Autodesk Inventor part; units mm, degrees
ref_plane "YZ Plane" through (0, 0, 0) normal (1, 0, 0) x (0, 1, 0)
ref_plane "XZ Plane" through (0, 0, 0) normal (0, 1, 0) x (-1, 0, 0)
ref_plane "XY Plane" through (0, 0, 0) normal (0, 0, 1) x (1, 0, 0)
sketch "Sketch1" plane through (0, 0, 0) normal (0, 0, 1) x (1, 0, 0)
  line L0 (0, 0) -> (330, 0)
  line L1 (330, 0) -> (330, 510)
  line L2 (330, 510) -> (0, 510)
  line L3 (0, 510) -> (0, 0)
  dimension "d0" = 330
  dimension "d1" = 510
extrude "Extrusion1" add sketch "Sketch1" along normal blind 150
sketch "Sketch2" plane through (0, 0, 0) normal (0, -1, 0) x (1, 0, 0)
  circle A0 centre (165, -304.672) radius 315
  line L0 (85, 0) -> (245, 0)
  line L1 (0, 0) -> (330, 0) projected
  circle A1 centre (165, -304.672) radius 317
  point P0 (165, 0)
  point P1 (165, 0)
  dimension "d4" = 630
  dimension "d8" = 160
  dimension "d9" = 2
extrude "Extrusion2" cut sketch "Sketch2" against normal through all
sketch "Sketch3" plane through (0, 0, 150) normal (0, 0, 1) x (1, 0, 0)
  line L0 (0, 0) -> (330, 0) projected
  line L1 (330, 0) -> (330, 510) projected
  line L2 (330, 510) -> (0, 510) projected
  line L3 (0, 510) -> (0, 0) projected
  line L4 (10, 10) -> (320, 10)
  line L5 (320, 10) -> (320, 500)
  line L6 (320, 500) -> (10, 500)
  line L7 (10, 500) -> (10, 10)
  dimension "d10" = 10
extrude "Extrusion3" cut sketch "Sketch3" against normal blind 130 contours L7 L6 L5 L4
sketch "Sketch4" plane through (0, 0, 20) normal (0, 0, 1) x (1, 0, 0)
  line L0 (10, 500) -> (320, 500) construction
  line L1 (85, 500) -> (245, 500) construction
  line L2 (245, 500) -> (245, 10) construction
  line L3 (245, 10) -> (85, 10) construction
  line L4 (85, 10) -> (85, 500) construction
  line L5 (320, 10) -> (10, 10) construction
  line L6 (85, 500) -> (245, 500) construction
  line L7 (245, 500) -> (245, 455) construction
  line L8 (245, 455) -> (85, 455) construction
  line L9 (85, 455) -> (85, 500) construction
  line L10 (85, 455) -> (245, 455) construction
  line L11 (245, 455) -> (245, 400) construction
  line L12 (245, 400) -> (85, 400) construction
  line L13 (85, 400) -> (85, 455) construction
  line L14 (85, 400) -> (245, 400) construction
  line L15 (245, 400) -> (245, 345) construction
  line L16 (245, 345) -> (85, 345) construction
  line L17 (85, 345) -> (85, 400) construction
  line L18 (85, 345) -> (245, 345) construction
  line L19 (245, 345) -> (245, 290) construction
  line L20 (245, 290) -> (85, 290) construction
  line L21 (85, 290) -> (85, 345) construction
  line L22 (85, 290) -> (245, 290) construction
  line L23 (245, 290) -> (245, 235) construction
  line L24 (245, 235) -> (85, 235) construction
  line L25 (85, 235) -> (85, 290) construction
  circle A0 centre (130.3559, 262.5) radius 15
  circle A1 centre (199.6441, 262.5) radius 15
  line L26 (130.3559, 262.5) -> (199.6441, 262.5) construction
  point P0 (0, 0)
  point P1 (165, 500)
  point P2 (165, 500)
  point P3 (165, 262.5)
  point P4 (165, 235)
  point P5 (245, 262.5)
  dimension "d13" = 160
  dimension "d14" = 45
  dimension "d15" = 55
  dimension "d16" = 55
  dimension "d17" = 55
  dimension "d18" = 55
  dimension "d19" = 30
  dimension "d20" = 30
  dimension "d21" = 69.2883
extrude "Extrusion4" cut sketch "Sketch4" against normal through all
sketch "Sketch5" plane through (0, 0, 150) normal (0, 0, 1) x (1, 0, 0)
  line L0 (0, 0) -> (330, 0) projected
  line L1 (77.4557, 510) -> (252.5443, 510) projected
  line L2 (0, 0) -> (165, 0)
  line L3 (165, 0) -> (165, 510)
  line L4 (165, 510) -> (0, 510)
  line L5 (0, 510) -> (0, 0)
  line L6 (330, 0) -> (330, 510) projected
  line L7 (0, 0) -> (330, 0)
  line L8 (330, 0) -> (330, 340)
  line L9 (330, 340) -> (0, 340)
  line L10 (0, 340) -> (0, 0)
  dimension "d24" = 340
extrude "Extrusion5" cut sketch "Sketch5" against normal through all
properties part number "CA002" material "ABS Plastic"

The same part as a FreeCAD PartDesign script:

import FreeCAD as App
import Part
import Sketcher
from FreeCAD import Vector
Q = App.Units.Quantity


def add_polygon(sketch, points):
    """Adds a closed chain of lines whose ends are joined by coincident constraints."""
    first, n = sketch.GeometryCount, len(points)
    for a, b in zip(points, points[1:] + points[:1]):
        sketch.addGeometry(Part.LineSegment(App.Vector(*a, 0), App.Vector(*b, 0)), False)
    for i in range(n):
        sketch.addConstraint(Sketcher.Constraint("Coincident", first + i, 2, first + (i + 1) % n, 1))

doc = App.newDocument("Part")
params = doc.addObject("Spreadsheet::Sheet", "Params")
for row, (alias, value) in enumerate([
    ("sketch1_width", "330 mm"),
    ("sketch1_height", "510 mm"),
    ("pad1_length", "150 mm"),
    ("sketch2_diameter", "634 mm"),
    ("sketch3_width", "310 mm"),
    ("sketch3_height", "490 mm"),
    ("pocket2_length", "130 mm"),
    ("sketch4_diameter", "30 mm"),
    ("sketch5_height", "340 mm"),
    ("sketch5_width", "330 mm"),
    ("sketch5_height2", "170 mm"),
], start=1):
    params.set(f"A{row}", alias)
    params.set(f"B{row}", "=" + value)
    params.setAlias(f"B{row}", alias)

body = doc.addObject("PartDesign::Body", "Body")

sketch1 = body.newObject("Sketcher::SketchObject", "Sketch")
sketch1.AttachmentSupport = (doc.getObject("XY_Plane"), [""])
sketch1.MapMode = "FlatFace"
add_polygon(sketch1, [(0, 510), (0, 0), (330, 0), (330, 510)])
sketch1.addConstraint([
    Sketcher.Constraint("Vertical", 0),
    Sketcher.Constraint("Horizontal", 1),
    Sketcher.Constraint("Vertical", 2),
    Sketcher.Constraint("Horizontal", 3),
    Sketcher.Constraint("Coincident", 0, 2, -1, 1),
    Sketcher.Constraint("DistanceX", 1, 1, 1, 2, Q("330 mm")),
    Sketcher.Constraint("DistanceY", 0, 2, 0, 1, Q("510 mm")),
])
sketch1.setExpression("Constraints[9]", "Params.sketch1_width")
sketch1.setExpression("Constraints[10]", "Params.sketch1_height")
pad1 = body.newObject("PartDesign::Pad", "Pad")
pad1.Profile = sketch1
pad1.setExpression("Length", "Params.pad1_length")

sketch2 = body.newObject("Sketcher::SketchObject", "Sketch001")
sketch2.AttachmentSupport = (doc.getObject("XZ_Plane"), [""])
sketch2.MapMode = "FlatFace"
sketch2.addGeometry(Part.Circle(Vector(165, -305, 0), Vector(0, 0, 1), 317), False)
sketch2.addConstraint([
    Sketcher.Constraint("Diameter", 0, Q("634 mm")),
    Sketcher.Constraint("DistanceX", -1, 1, 0, 3, Q("165 mm")),
    Sketcher.Constraint("DistanceY", 0, 3, -1, 1, Q("304.672 mm")),
])
sketch2.setExpression("Constraints[0]", "Params.sketch2_diameter")
pocket1 = body.newObject("PartDesign::Pocket", "Pocket")
pocket1.Profile = sketch2
pocket1.Type = "ThroughAll"

sketch3 = body.newObject("Sketcher::SketchObject", "Sketch002")
sketch3.AttachmentSupport = (doc.getObject("XY_Plane"), [""])
sketch3.MapMode = "FlatFace"
sketch3.AttachmentOffset = App.Placement(Vector(0, 0, 150), App.Rotation())
add_polygon(sketch3, [(10, 500), (10, 10), (320, 10), (320, 500)])
sketch3.addConstraint([
    Sketcher.Constraint("Vertical", 0),
    Sketcher.Constraint("Horizontal", 1),
    Sketcher.Constraint("Vertical", 2),
    Sketcher.Constraint("Horizontal", 3),
    Sketcher.Constraint("DistanceX", -1, 1, 0, 2, Q("10 mm")),
    Sketcher.Constraint("DistanceY", -1, 1, 0, 2, Q("10 mm")),
    Sketcher.Constraint("DistanceX", 1, 1, 1, 2, Q("310 mm")),
    Sketcher.Constraint("DistanceY", 0, 2, 0, 1, Q("490 mm")),
])
sketch3.setExpression("Constraints[10]", "Params.sketch3_width")
sketch3.setExpression("Constraints[11]", "Params.sketch3_height")
pocket2 = body.newObject("PartDesign::Pocket", "Pocket001")
pocket2.Profile = sketch3
pocket2.setExpression("Length", "Params.pocket2_length")

sketch4 = body.newObject("Sketcher::SketchObject", "Sketch003")
sketch4.AttachmentSupport = (doc.getObject("XY_Plane"), [""])
sketch4.MapMode = "FlatFace"
sketch4.AttachmentOffset = App.Placement(Vector(0, 0, 20), App.Rotation())
sketch4.addGeometry([
    Part.Circle(Vector(130, 262, 0), Vector(0, 0, 1), 15),
    Part.Circle(Vector(200, 262, 0), Vector(0, 0, 1), 15),
], False)
sketch4.addConstraint([
    Sketcher.Constraint("Equal", 0, 1),
    Sketcher.Constraint("Horizontal", 0, 3, 1, 3),
    Sketcher.Constraint("Diameter", 0, Q("30 mm")),
    Sketcher.Constraint("DistanceY", -1, 1, 0, 3, Q("262.5 mm")),
    Sketcher.Constraint("DistanceX", 0, 3, 1, 3, Q("69.2882 mm")),
    Sketcher.Constraint("DistanceX", -1, 1, 0, 3, Q("130.356 mm")),
])
sketch4.setExpression("Constraints[2]", "Params.sketch4_diameter")
pocket3 = body.newObject("PartDesign::Pocket", "Pocket002")
pocket3.Profile = sketch4
pocket3.Type = "ThroughAll"

sketch5 = body.newObject("Sketcher::SketchObject", "Sketch004")
sketch5.AttachmentSupport = (doc.getObject("XY_Plane"), [""])
sketch5.MapMode = "FlatFace"
sketch5.AttachmentOffset = App.Placement(Vector(0, 0, 150), App.Rotation())
add_polygon(sketch5, [(0, 0), (330, 0), (330, 340), (165, 340), (165, 510), (0, 510)])
sketch5.addConstraint([
    Sketcher.Constraint("Horizontal", 0),
    Sketcher.Constraint("Vertical", 1),
    Sketcher.Constraint("Horizontal", 2),
    Sketcher.Constraint("Vertical", 3),
    Sketcher.Constraint("Horizontal", 4),
    Sketcher.Constraint("Vertical", 5),
    Sketcher.Constraint("Coincident", 5, 2, -1, 1),
    Sketcher.Constraint("Equal", 2, 4),
    Sketcher.Constraint("DistanceY", 1, 1, 1, 2, Q("340 mm")),
    Sketcher.Constraint("DistanceX", 0, 1, 0, 2, Q("330 mm")),
    Sketcher.Constraint("DistanceY", 3, 1, 3, 2, Q("170 mm")),
])
sketch5.setExpression("Constraints[14]", "Params.sketch5_height")
sketch5.setExpression("Constraints[15]", "Params.sketch5_width")
sketch5.setExpression("Constraints[16]", "Params.sketch5_height2")
pocket4 = body.newObject("PartDesign::Pocket", "Pocket003")
pocket4.Profile = sketch5
pocket4.Type = "ThroughAll"

doc.recompute()
